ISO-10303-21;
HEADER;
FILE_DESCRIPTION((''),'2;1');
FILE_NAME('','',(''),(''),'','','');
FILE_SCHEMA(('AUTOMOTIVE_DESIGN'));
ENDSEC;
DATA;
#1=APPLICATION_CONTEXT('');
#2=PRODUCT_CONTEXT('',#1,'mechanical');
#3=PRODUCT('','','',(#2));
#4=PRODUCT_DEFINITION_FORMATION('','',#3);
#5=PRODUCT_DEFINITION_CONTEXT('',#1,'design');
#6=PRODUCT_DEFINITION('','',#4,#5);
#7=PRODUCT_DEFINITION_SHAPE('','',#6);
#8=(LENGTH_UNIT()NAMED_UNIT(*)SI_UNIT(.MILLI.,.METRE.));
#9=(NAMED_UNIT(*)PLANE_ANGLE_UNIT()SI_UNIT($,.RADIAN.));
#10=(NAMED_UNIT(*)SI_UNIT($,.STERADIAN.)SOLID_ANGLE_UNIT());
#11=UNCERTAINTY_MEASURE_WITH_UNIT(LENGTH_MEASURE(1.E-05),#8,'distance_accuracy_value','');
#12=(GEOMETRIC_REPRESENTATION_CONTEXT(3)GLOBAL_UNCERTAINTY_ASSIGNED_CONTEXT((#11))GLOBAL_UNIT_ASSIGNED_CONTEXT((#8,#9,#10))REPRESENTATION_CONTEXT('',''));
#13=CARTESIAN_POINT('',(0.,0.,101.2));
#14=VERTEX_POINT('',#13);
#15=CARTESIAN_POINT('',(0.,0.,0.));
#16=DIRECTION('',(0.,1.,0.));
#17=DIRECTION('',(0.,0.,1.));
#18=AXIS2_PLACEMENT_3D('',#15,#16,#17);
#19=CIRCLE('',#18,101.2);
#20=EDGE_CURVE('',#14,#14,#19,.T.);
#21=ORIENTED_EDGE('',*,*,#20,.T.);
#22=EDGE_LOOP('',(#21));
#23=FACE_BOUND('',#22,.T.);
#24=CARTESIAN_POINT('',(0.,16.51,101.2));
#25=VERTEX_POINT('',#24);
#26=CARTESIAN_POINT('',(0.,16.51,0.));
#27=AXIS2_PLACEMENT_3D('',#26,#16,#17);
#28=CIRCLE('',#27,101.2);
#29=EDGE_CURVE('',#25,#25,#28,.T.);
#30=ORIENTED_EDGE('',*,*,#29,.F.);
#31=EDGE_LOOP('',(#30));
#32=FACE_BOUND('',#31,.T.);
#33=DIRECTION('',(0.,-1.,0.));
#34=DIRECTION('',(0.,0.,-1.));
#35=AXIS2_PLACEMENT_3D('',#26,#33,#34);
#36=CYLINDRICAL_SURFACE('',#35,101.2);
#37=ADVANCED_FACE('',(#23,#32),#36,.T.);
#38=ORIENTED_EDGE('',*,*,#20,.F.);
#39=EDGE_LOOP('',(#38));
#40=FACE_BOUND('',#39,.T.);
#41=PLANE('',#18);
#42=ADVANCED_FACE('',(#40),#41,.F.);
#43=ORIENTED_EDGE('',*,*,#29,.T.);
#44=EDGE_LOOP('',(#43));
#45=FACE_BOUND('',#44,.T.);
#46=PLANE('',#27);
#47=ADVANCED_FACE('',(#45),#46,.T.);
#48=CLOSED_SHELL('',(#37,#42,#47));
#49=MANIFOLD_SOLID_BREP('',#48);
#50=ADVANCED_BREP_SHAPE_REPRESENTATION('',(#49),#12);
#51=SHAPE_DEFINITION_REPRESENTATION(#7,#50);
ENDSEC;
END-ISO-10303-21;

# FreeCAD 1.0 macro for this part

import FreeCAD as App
import Part
import Sketcher
from FreeCAD import Vector
Q = App.Units.Quantity

doc = App.newDocument("Part")
body = doc.addObject("PartDesign::Body", "Body")

sketch1 = body.newObject("Sketcher::SketchObject", "Sketch")
sketch1.AttachmentSupport = (doc.getObject("XZ_Plane"), [""])
sketch1.MapMode = "FlatFace"
sketch1.addGeometry(Part.Circle(Vector(0, 0, 0), Vector(0, 0, 1), 101), False)
sketch1.addConstraint([
    Sketcher.Constraint("Coincident", 0, 3, -1, 1),
    Sketcher.Constraint("Diameter", 0, Q("202.4 mm")),
])
pad1 = body.newObject("PartDesign::Pad", "Pad")
pad1.Profile = sketch1
pad1.Length = 16.51
pad1.Reversed = True

doc.recompute()
